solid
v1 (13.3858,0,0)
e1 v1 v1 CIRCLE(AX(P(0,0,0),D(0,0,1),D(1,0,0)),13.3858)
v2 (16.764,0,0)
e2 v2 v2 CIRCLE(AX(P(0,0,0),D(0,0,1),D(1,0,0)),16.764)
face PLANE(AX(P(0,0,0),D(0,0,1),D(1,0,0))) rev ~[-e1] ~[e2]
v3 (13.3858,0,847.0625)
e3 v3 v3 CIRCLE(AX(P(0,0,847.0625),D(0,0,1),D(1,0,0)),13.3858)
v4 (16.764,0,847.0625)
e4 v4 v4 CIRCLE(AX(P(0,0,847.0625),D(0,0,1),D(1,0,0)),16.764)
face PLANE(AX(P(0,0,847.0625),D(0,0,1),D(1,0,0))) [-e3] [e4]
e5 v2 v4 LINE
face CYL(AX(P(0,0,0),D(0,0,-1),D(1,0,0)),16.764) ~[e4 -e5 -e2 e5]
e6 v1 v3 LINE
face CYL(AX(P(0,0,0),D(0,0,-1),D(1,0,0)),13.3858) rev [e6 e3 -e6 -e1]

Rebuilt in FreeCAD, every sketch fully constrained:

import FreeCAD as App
import Part
import Sketcher
from FreeCAD import Vector
Q = App.Units.Quantity

doc = App.newDocument("Part")
body = doc.addObject("PartDesign::Body", "Body")

sketch1 = body.newObject("Sketcher::SketchObject", "Sketch")
sketch1.AttachmentSupport = (doc.getObject("XY_Plane"), [""])
sketch1.MapMode = "FlatFace"
sketch1.addGeometry(Part.Circle(Vector(0, 0, 0), Vector(0, 0, 1), 17), False)
sketch1.addGeometry(Part.Circle(Vector(0, 0, 0), Vector(0, 0, 1), 13), False)
sketch1.addConstraint(Sketcher.Constraint("Coincident", 0, 3, -1, 1))
sketch1.addConstraint(Sketcher.Constraint("Coincident", 1, 3, -1, 1))
sketch1.addConstraint(Sketcher.Constraint("Diameter", 0, Q("1.32 in")))
sketch1.addConstraint(Sketcher.Constraint("Diameter", 1, Q("1.054 in")))
pad1 = body.newObject("PartDesign::Pad", "Pad")
pad1.Profile = sketch1
pad1.Length = 847.0625

doc.recompute()
